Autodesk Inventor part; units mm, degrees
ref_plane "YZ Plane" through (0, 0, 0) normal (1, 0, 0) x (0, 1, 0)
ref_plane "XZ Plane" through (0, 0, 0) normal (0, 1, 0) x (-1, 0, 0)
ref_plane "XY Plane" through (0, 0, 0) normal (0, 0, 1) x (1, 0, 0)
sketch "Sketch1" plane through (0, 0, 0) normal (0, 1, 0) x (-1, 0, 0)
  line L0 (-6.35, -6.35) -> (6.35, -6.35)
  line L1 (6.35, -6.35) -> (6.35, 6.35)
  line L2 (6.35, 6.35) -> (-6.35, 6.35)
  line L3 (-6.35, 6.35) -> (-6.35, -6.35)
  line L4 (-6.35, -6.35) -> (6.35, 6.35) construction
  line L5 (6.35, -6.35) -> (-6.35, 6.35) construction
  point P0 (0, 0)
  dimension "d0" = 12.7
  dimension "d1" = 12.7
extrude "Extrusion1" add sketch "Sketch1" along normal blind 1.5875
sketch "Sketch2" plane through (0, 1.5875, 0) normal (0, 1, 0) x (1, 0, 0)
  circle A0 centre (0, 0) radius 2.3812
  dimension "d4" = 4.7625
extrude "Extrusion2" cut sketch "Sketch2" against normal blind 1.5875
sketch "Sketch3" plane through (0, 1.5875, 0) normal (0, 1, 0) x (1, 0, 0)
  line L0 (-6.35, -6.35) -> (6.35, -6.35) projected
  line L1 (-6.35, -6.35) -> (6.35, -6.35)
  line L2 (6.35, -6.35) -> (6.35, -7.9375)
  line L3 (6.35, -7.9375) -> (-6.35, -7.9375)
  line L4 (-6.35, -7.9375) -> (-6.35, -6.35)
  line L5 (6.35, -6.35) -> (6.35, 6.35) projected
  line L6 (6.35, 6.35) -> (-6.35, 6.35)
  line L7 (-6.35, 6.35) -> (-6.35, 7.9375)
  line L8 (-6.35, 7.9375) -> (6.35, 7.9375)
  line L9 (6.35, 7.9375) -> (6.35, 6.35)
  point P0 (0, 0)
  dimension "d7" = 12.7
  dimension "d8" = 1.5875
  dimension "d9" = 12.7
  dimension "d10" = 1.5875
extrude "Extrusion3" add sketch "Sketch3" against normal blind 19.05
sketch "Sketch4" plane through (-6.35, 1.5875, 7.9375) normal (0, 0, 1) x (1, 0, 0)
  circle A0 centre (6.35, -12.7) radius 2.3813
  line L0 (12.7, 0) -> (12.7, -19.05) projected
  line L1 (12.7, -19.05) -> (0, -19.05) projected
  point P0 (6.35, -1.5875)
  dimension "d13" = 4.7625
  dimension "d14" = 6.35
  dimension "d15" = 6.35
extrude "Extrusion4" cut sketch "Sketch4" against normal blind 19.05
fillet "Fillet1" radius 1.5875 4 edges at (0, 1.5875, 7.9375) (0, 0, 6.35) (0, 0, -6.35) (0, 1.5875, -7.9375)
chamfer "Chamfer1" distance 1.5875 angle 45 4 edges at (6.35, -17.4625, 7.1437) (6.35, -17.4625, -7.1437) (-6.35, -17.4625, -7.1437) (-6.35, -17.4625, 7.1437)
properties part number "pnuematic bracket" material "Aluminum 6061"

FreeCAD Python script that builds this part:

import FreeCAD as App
import Part
import Sketcher
Q = App.Units.Quantity


def edges_at(feature, points):
    """Names of the edges that pass closest to the given points."""
    edges = feature.Shape.Edges
    near = lambda p: min(range(len(edges)), key=lambda i: edges[i].distToShape(Part.Vertex(*p))[0])
    return sorted({f"Edge{near(p) + 1}" for p in points})

doc = App.newDocument("Part")
body = doc.addObject("PartDesign::Body", "Body")

# Sketch on XZ plane
sketch1 = body.newObject("Sketcher::SketchObject", "Sketch")
sketch1.AttachmentSupport = (doc.getObject("XZ_Plane"), [""])
sketch1.MapMode = "FlatFace"
sketch1.addGeometry([
    Part.LineSegment(App.Vector(6, 6, 0), App.Vector(6, -6, 0)),
    Part.LineSegment(App.Vector(6, -6, 0), App.Vector(-6, -6, 0)),
    Part.LineSegment(App.Vector(-6, -6, 0), App.Vector(-6, 6, 0)),
    Part.LineSegment(App.Vector(-6, 6, 0), App.Vector(6, 6, 0)),
], False)
sketch1.addConstraint([
    Sketcher.Constraint("Coincident", 0, 2, 1, 1),
    Sketcher.Constraint("Coincident", 1, 2, 2, 1),
    Sketcher.Constraint("Coincident", 2, 2, 3, 1),
    Sketcher.Constraint("Coincident", 3, 2, 0, 1),
    Sketcher.Constraint("Vertical", 0),
    Sketcher.Constraint("Horizontal", 1),
    Sketcher.Constraint("Vertical", 2),
    Sketcher.Constraint("Horizontal", 3),
    Sketcher.Constraint("Symmetric", 0, 2, 2, 2, -1, 1),
    Sketcher.Constraint("Equal", 3, 0),
    Sketcher.Constraint("DistanceX", 1, 2, 1, 1, Q("0.5 in")),
])
pad1 = body.newObject("PartDesign::Pad", "Pad")
pad1.Profile = sketch1
pad1.Length = Q("0.0625 in")
pad1.Reversed = True

# Sketch on XZ plane
sketch2 = body.newObject("Sketcher::SketchObject", "Sketch001")
sketch2.AttachmentSupport = (doc.getObject("XZ_Plane"), [""])
sketch2.MapMode = "FlatFace"
sketch2.AttachmentOffset = App.Placement(App.Vector(0, 0, -0.0625 * 25.4), App.Rotation())
sketch2.addGeometry(Part.Circle(App.Vector(0, 0, 0), App.Vector(0, 0, 1), 2.4), False)
sketch2.addConstraint([
    Sketcher.Constraint("Coincident", 0, 3, -1, 1),
    Sketcher.Constraint("Diameter", 0, Q("0.1875 in")),
])
pocket1 = body.newObject("PartDesign::Pocket", "Pocket")
pocket1.Profile = sketch2
pocket1.Length = Q("0.0625 in")
pocket1.Reversed = True

# Sketch on XZ plane
sketch3 = body.newObject("Sketcher::SketchObject", "Sketch002")
sketch3.AttachmentSupport = (doc.getObject("XZ_Plane"), [""])
sketch3.MapMode = "FlatFace"
sketch3.AttachmentOffset = App.Placement(App.Vector(0, 0, -0.0625 * 25.4), App.Rotation())
sketch3.addGeometry([
    Part.LineSegment(App.Vector(-6.3, -6.3, 0), App.Vector(6.3, -6.3, 0)),  # 0
    Part.LineSegment(App.Vector(6.3, -6.3, 0), App.Vector(6.3, -7.9, 0)),  # 1
    Part.LineSegment(App.Vector(6.3, -7.9, 0), App.Vector(-6.3, -7.9, 0)),  # 2
    Part.LineSegment(App.Vector(-6.3, -7.9, 0), App.Vector(-6.3, -6.3, 0)),  # 3
    Part.LineSegment(App.Vector(6.3, 6.3, 0), App.Vector(-6.3, 6.3, 0)),  # 4
    Part.LineSegment(App.Vector(-6.3, 6.3, 0), App.Vector(-6.3, 7.9, 0)),  # 5
    Part.LineSegment(App.Vector(-6.3, 7.9, 0), App.Vector(6.3, 7.9, 0)),  # 6
    Part.LineSegment(App.Vector(6.3, 7.9, 0), App.Vector(6.3, 6.3, 0)),  # 7
], False)
sketch3.addConstraint([
    Sketcher.Constraint("Coincident", 0, 2, 1, 1),
    Sketcher.Constraint("Coincident", 1, 2, 2, 1),
    Sketcher.Constraint("Coincident", 2, 2, 3, 1),
    Sketcher.Constraint("Coincident", 3, 2, 0, 1),
    Sketcher.Constraint("Coincident", 4, 2, 5, 1),
    Sketcher.Constraint("Coincident", 5, 2, 6, 1),
    Sketcher.Constraint("Coincident", 6, 2, 7, 1),
    Sketcher.Constraint("Coincident", 7, 2, 4, 1),
    Sketcher.Constraint("Horizontal", 0),
    Sketcher.Constraint("Vertical", 1),
    Sketcher.Constraint("Horizontal", 2),
    Sketcher.Constraint("Vertical", 3),
    Sketcher.Constraint("Horizontal", 4),
    Sketcher.Constraint("Vertical", 5),
    Sketcher.Constraint("Horizontal", 6),
    Sketcher.Constraint("Vertical", 7),
    Sketcher.Constraint("Symmetric", 0, 2, 4, 2, -1, 1),
    Sketcher.Constraint("Symmetric", 2, 2, 6, 2, -1, 1),
    Sketcher.Constraint("Vertical", 3, 2, 4, 2),
    Sketcher.Constraint("DistanceX", 0, 1, 0, 2, Q("0.5 in")),
    Sketcher.Constraint("DistanceY", 3, 2, 4, 2, Q("0.5 in")),
    Sketcher.Constraint("DistanceY", 1, 2, 1, 1, Q("0.0625 in")),
])
pad2 = body.newObject("PartDesign::Pad", "Pad001")
pad2.Profile = sketch3
pad2.Length = Q("0.75 in")

# Sketch on XY plane
sketch4 = body.newObject("Sketcher::SketchObject", "Sketch003")
sketch4.AttachmentSupport = (doc.getObject("XY_Plane"), [""])
sketch4.MapMode = "FlatFace"
sketch4.AttachmentOffset = App.Placement(App.Vector(0, 0, 0.3125 * 25.4), App.Rotation())
sketch4.addGeometry(Part.Circle(App.Vector(0, -11.1, 0), App.Vector(0, 0, 1), 2.4), False)
sketch4.addConstraint([
    Sketcher.Constraint("PointOnObject", 0, 3, -2),
    Sketcher.Constraint("Diameter", 0, Q("0.1875 in")),
    Sketcher.Constraint("DistanceY", 0, 3, -1, 1, Q("0.4375 in")),
])
pocket2 = body.newObject("PartDesign::Pocket", "Pocket001")
pocket2.Profile = sketch4
pocket2.Length = Q("0.75 in")
doc.recompute()

fillet = body.newObject("PartDesign::Fillet", "Fillet")
fillet.Base = (pocket2, edges_at(pocket2, [
    (0, 1.587, 7.938),
    (0, 0, 6.35),
    (0, 0, -6.35),
    (0, 1.587, -7.938),
]))
fillet.Radius = Q("0.0625 in")
doc.recompute()

chamfer = body.newObject("PartDesign::Chamfer", "Chamfer")
chamfer.Base = (fillet, edges_at(fillet, [
    (6.35, -17.462, 7.144),
    (6.35, -17.462, -7.144),
    (-6.35, -17.462, -7.144),
    (-6.35, -17.462, 7.144),
]))
chamfer.Size = Q("0.0625 in")

doc.recompute()
